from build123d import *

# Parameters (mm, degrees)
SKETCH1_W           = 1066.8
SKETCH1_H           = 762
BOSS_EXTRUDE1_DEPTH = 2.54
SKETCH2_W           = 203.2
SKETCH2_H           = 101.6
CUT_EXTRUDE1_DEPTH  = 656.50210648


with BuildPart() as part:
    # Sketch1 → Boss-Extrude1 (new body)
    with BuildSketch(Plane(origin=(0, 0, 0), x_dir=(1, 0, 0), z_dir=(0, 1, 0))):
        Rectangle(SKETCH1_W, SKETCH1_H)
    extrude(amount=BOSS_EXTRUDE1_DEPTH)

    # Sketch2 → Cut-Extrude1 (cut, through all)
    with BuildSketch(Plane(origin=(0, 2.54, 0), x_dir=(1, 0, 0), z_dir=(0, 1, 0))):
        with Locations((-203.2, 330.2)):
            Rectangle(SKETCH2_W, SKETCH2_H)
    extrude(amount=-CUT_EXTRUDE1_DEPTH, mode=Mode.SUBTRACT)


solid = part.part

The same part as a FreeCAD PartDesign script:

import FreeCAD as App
import Part
import Sketcher

V = App.Vector
Q = App.Units.Quantity


def add_polygon(sketch, points):
    """Adds a closed chain of lines whose ends are joined by coincident constraints."""
    first, n = sketch.GeometryCount, len(points)
    for a, b in zip(points, points[1:] + points[:1]):
        sketch.addGeometry(Part.LineSegment(App.Vector(*a, 0), App.Vector(*b, 0)), False)
    for i in range(n):
        sketch.addConstraint(Sketcher.Constraint("Coincident", first + i, 2, first + (i + 1) % n, 1))

doc = App.newDocument("Part")
body = doc.addObject("PartDesign::Body", "Body")

sketch1 = body.newObject("Sketcher::SketchObject", "Sketch")
sketch1.AttachmentSupport = (doc.getObject("XZ_Plane"), [""])
sketch1.MapMode = "FlatFace"
add_polygon(sketch1, [(-533, -381), (-533, 381), (533, 381), (533, -381)])
sketch1.addConstraint([
    Sketcher.Constraint("Vertical", 0),
    Sketcher.Constraint("Horizontal", 1),
    Sketcher.Constraint("Vertical", 2),
    Sketcher.Constraint("Horizontal", 3),
    Sketcher.Constraint("Symmetric", 0, 2, 2, 2, -1, 1),
    Sketcher.Constraint("DistanceX", 1, 1, 1, 2, Q("42 in")),
    Sketcher.Constraint("DistanceY", 0, 1, 0, 2, Q("30 in")),
])
pad1 = body.newObject("PartDesign::Pad", "Pad")
pad1.Profile = sketch1
pad1.Length = Q("0.1 in")
pad1.Reversed = True

sketch2 = body.newObject("Sketcher::SketchObject", "Sketch001")
sketch2.AttachmentSupport = (doc.getObject("XZ_Plane"), [""])
sketch2.MapMode = "FlatFace"
sketch2.AttachmentOffset = App.Placement(V(0, 0, -0.1 * 25.4), App.Rotation())
add_polygon(sketch2, [(-305, -381), (-305, -279), (-102, -279), (-102, -381)])
sketch2.addConstraint([
    Sketcher.Constraint("Vertical", 0),
    Sketcher.Constraint("Horizontal", 1),
    Sketcher.Constraint("Vertical", 2),
    Sketcher.Constraint("Horizontal", 3),
    Sketcher.Constraint("DistanceX", 1, 1, 1, 2, Q("8 in")),
    Sketcher.Constraint("DistanceY", 0, 1, 0, 2, Q("4 in")),
    Sketcher.Constraint("DistanceX", 0, 2, -1, 1, Q("12 in")),
    Sketcher.Constraint("DistanceY", 0, 2, -1, 1, Q("11 in")),
])
pocket1 = body.newObject("PartDesign::Pocket", "Pocket")
pocket1.Profile = sketch2
pocket1.Type = "ThroughAll"
pocket1.Reversed = True

doc.recompute()
